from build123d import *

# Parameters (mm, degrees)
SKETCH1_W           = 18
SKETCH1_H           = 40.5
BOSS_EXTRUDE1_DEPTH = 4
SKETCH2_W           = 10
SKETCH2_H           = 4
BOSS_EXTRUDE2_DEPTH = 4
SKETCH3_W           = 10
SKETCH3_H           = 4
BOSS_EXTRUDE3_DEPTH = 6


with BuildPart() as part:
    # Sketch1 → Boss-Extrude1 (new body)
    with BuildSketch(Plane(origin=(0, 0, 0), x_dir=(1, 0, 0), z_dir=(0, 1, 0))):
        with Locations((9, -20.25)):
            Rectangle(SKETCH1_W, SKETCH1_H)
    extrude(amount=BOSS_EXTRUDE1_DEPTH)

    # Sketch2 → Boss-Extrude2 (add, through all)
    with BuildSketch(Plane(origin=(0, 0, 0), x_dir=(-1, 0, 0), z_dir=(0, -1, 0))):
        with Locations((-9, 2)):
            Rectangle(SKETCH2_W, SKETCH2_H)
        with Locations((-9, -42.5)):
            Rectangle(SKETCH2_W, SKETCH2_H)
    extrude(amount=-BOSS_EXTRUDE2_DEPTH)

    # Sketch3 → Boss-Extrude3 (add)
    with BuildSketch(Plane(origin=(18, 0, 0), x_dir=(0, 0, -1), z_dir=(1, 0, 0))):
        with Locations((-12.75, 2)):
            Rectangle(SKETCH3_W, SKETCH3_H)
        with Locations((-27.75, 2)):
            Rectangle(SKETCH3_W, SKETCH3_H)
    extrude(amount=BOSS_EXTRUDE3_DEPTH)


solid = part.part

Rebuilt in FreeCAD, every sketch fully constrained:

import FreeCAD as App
import Part
import Sketcher

doc = App.newDocument("Part")
body = doc.addObject("PartDesign::Body", "Body")

# Sketch on XZ plane
sketch1 = body.newObject("Sketcher::SketchObject", "Sketch")
sketch1.AttachmentSupport = (doc.getObject("XZ_Plane"), [""])
sketch1.MapMode = "FlatFace"
sketch1.addGeometry([
    Part.LineSegment(App.Vector(0, 0, 0), App.Vector(0, 40.5, 0)),
    Part.LineSegment(App.Vector(0, 40.5, 0), App.Vector(18, 40.5, 0)),
    Part.LineSegment(App.Vector(18, 40.5, 0), App.Vector(18, 0, 0)),
    Part.LineSegment(App.Vector(18, 0, 0), App.Vector(0, 0, 0)),
], False)
sketch1.addConstraint([
    Sketcher.Constraint("Coincident", 0, 2, 1, 1),
    Sketcher.Constraint("Coincident", 1, 2, 2, 1),
    Sketcher.Constraint("Coincident", 2, 2, 3, 1),
    Sketcher.Constraint("Coincident", 3, 2, 0, 1),
    Sketcher.Constraint("Vertical", 0),
    Sketcher.Constraint("Horizontal", 1),
    Sketcher.Constraint("Vertical", 2),
    Sketcher.Constraint("Horizontal", 3),
    Sketcher.Constraint("Coincident", 3, 2, -1, 1),
    Sketcher.Constraint("DistanceX", 1, 1, 1, 2, 18.0),
    Sketcher.Constraint("DistanceY", 0, 1, 0, 2, 40.5),
])
pad1 = body.newObject("PartDesign::Pad", "Pad")
pad1.Profile = sketch1
pad1.Length = 4
pad1.Reversed = True

# Sketch on XZ plane
sketch2 = body.newObject("Sketcher::SketchObject", "Sketch001")
sketch2.AttachmentSupport = (doc.getObject("XZ_Plane"), [""])
sketch2.MapMode = "FlatFace"
sketch2.addGeometry([
    Part.LineSegment(App.Vector(14, -4, 0), App.Vector(14, 0, 0)),  # 0
    Part.LineSegment(App.Vector(14, 0, 0), App.Vector(4, 0, 0)),  # 1
    Part.LineSegment(App.Vector(4, 0, 0), App.Vector(4, -4, 0)),  # 2
    Part.LineSegment(App.Vector(4, -4, 0), App.Vector(14, -4, 0)),  # 3
    Part.LineSegment(App.Vector(14, 40.5, 0), App.Vector(14, 44.5, 0)),  # 4
    Part.LineSegment(App.Vector(14, 44.5, 0), App.Vector(4, 44.5, 0)),  # 5
    Part.LineSegment(App.Vector(4, 44.5, 0), App.Vector(4, 40.5, 0)),  # 6
    Part.LineSegment(App.Vector(4, 40.5, 0), App.Vector(14, 40.5, 0)),  # 7
], False)
sketch2.addConstraint([
    Sketcher.Constraint("Coincident", 0, 2, 1, 1),
    Sketcher.Constraint("Coincident", 1, 2, 2, 1),
    Sketcher.Constraint("Coincident", 2, 2, 3, 1),
    Sketcher.Constraint("Coincident", 3, 2, 0, 1),
    Sketcher.Constraint("Coincident", 4, 2, 5, 1),
    Sketcher.Constraint("Coincident", 5, 2, 6, 1),
    Sketcher.Constraint("Coincident", 6, 2, 7, 1),
    Sketcher.Constraint("Coincident", 7, 2, 4, 1),
    Sketcher.Constraint("Vertical", 0),
    Sketcher.Constraint("Horizontal", 1),
    Sketcher.Constraint("Vertical", 2),
    Sketcher.Constraint("Horizontal", 3),
    Sketcher.Constraint("Vertical", 4),
    Sketcher.Constraint("Horizontal", 5),
    Sketcher.Constraint("Vertical", 6),
    Sketcher.Constraint("Horizontal", 7),
    Sketcher.Constraint("PointOnObject", 0, 2, -1),
    Sketcher.Constraint("Vertical", 3, 2, 4, 2),
    Sketcher.Constraint("Vertical", 2, 2, 5, 2),
    Sketcher.Constraint("Equal", 2, 4),
    Sketcher.Constraint("DistanceX", 1, 2, 1, 1, 10.0),
    Sketcher.Constraint("DistanceY", 0, 1, 0, 2, 4.0),
    Sketcher.Constraint("DistanceX", -1, 1, 0, 2, 14.0),
    Sketcher.Constraint("DistanceY", -1, 1, 4, 2, 44.5),
])
pad2 = body.newObject("PartDesign::Pad", "Pad001")
pad2.Profile = sketch2
pad2.Type = "UpToLast"
pad2.Reversed = True

# Sketch on YZ plane
sketch3 = body.newObject("Sketcher::SketchObject", "Sketch002")
sketch3.AttachmentSupport = (doc.getObject("YZ_Plane"), [""])
sketch3.MapMode = "FlatFace"
sketch3.AttachmentOffset = App.Placement(App.Vector(0, 0, 18), App.Rotation())
sketch3.addGeometry([
    Part.LineSegment(App.Vector(4, 17.75, 0), App.Vector(0, 17.75, 0)),  # 0
    Part.LineSegment(App.Vector(0, 17.75, 0), App.Vector(0, 7.75, 0)),  # 1
    Part.LineSegment(App.Vector(0, 7.75, 0), App.Vector(4, 7.75, 0)),  # 2
    Part.LineSegment(App.Vector(4, 7.75, 0), App.Vector(4, 17.75, 0)),  # 3
    Part.LineSegment(App.Vector(4, 32.75, 0), App.Vector(0, 32.75, 0)),  # 4
    Part.LineSegment(App.Vector(0, 32.75, 0), App.Vector(0, 22.75, 0)),  # 5
    Part.LineSegment(App.Vector(0, 22.75, 0), App.Vector(4, 22.75, 0)),  # 6
    Part.LineSegment(App.Vector(4, 22.75, 0), App.Vector(4, 32.75, 0)),  # 7
], False)
sketch3.addConstraint([
    Sketcher.Constraint("Coincident", 0, 2, 1, 1),
    Sketcher.Constraint("Coincident", 1, 2, 2, 1),
    Sketcher.Constraint("Coincident", 2, 2, 3, 1),
    Sketcher.Constraint("Coincident", 3, 2, 0, 1),
    Sketcher.Constraint("Coincident", 4, 2, 5, 1),
    Sketcher.Constraint("Coincident", 5, 2, 6, 1),
    Sketcher.Constraint("Coincident", 6, 2, 7, 1),
    Sketcher.Constraint("Coincident", 7, 2, 4, 1),
    Sketcher.Constraint("Horizontal", 0),
    Sketcher.Constraint("Vertical", 1),
    Sketcher.Constraint("Horizontal", 2),
    Sketcher.Constraint("Vertical", 3),
    Sketcher.Constraint("Horizontal", 4),
    Sketcher.Constraint("Vertical", 5),
    Sketcher.Constraint("Horizontal", 6),
    Sketcher.Constraint("Vertical", 7),
    Sketcher.Constraint("PointOnObject", 0, 2, -2),
    Sketcher.Constraint("PointOnObject", 4, 2, -2),
    Sketcher.Constraint("Vertical", 3, 2, 6, 2),
    Sketcher.Constraint("Equal", 3, 5),
    Sketcher.Constraint("DistanceX", 0, 2, 0, 1, 4.0),
    Sketcher.Constraint("DistanceY", 1, 2, 1, 1, 10.0),
    Sketcher.Constraint("DistanceY", 0, 2, 4, 2, 15.0),
    Sketcher.Constraint("DistanceY", -1, 1, 0, 2, 17.75),
])
pad3 = body.newObject("PartDesign::Pad", "Pad002")
pad3.Profile = sketch3
pad3.Length = 6

doc.recompute()
